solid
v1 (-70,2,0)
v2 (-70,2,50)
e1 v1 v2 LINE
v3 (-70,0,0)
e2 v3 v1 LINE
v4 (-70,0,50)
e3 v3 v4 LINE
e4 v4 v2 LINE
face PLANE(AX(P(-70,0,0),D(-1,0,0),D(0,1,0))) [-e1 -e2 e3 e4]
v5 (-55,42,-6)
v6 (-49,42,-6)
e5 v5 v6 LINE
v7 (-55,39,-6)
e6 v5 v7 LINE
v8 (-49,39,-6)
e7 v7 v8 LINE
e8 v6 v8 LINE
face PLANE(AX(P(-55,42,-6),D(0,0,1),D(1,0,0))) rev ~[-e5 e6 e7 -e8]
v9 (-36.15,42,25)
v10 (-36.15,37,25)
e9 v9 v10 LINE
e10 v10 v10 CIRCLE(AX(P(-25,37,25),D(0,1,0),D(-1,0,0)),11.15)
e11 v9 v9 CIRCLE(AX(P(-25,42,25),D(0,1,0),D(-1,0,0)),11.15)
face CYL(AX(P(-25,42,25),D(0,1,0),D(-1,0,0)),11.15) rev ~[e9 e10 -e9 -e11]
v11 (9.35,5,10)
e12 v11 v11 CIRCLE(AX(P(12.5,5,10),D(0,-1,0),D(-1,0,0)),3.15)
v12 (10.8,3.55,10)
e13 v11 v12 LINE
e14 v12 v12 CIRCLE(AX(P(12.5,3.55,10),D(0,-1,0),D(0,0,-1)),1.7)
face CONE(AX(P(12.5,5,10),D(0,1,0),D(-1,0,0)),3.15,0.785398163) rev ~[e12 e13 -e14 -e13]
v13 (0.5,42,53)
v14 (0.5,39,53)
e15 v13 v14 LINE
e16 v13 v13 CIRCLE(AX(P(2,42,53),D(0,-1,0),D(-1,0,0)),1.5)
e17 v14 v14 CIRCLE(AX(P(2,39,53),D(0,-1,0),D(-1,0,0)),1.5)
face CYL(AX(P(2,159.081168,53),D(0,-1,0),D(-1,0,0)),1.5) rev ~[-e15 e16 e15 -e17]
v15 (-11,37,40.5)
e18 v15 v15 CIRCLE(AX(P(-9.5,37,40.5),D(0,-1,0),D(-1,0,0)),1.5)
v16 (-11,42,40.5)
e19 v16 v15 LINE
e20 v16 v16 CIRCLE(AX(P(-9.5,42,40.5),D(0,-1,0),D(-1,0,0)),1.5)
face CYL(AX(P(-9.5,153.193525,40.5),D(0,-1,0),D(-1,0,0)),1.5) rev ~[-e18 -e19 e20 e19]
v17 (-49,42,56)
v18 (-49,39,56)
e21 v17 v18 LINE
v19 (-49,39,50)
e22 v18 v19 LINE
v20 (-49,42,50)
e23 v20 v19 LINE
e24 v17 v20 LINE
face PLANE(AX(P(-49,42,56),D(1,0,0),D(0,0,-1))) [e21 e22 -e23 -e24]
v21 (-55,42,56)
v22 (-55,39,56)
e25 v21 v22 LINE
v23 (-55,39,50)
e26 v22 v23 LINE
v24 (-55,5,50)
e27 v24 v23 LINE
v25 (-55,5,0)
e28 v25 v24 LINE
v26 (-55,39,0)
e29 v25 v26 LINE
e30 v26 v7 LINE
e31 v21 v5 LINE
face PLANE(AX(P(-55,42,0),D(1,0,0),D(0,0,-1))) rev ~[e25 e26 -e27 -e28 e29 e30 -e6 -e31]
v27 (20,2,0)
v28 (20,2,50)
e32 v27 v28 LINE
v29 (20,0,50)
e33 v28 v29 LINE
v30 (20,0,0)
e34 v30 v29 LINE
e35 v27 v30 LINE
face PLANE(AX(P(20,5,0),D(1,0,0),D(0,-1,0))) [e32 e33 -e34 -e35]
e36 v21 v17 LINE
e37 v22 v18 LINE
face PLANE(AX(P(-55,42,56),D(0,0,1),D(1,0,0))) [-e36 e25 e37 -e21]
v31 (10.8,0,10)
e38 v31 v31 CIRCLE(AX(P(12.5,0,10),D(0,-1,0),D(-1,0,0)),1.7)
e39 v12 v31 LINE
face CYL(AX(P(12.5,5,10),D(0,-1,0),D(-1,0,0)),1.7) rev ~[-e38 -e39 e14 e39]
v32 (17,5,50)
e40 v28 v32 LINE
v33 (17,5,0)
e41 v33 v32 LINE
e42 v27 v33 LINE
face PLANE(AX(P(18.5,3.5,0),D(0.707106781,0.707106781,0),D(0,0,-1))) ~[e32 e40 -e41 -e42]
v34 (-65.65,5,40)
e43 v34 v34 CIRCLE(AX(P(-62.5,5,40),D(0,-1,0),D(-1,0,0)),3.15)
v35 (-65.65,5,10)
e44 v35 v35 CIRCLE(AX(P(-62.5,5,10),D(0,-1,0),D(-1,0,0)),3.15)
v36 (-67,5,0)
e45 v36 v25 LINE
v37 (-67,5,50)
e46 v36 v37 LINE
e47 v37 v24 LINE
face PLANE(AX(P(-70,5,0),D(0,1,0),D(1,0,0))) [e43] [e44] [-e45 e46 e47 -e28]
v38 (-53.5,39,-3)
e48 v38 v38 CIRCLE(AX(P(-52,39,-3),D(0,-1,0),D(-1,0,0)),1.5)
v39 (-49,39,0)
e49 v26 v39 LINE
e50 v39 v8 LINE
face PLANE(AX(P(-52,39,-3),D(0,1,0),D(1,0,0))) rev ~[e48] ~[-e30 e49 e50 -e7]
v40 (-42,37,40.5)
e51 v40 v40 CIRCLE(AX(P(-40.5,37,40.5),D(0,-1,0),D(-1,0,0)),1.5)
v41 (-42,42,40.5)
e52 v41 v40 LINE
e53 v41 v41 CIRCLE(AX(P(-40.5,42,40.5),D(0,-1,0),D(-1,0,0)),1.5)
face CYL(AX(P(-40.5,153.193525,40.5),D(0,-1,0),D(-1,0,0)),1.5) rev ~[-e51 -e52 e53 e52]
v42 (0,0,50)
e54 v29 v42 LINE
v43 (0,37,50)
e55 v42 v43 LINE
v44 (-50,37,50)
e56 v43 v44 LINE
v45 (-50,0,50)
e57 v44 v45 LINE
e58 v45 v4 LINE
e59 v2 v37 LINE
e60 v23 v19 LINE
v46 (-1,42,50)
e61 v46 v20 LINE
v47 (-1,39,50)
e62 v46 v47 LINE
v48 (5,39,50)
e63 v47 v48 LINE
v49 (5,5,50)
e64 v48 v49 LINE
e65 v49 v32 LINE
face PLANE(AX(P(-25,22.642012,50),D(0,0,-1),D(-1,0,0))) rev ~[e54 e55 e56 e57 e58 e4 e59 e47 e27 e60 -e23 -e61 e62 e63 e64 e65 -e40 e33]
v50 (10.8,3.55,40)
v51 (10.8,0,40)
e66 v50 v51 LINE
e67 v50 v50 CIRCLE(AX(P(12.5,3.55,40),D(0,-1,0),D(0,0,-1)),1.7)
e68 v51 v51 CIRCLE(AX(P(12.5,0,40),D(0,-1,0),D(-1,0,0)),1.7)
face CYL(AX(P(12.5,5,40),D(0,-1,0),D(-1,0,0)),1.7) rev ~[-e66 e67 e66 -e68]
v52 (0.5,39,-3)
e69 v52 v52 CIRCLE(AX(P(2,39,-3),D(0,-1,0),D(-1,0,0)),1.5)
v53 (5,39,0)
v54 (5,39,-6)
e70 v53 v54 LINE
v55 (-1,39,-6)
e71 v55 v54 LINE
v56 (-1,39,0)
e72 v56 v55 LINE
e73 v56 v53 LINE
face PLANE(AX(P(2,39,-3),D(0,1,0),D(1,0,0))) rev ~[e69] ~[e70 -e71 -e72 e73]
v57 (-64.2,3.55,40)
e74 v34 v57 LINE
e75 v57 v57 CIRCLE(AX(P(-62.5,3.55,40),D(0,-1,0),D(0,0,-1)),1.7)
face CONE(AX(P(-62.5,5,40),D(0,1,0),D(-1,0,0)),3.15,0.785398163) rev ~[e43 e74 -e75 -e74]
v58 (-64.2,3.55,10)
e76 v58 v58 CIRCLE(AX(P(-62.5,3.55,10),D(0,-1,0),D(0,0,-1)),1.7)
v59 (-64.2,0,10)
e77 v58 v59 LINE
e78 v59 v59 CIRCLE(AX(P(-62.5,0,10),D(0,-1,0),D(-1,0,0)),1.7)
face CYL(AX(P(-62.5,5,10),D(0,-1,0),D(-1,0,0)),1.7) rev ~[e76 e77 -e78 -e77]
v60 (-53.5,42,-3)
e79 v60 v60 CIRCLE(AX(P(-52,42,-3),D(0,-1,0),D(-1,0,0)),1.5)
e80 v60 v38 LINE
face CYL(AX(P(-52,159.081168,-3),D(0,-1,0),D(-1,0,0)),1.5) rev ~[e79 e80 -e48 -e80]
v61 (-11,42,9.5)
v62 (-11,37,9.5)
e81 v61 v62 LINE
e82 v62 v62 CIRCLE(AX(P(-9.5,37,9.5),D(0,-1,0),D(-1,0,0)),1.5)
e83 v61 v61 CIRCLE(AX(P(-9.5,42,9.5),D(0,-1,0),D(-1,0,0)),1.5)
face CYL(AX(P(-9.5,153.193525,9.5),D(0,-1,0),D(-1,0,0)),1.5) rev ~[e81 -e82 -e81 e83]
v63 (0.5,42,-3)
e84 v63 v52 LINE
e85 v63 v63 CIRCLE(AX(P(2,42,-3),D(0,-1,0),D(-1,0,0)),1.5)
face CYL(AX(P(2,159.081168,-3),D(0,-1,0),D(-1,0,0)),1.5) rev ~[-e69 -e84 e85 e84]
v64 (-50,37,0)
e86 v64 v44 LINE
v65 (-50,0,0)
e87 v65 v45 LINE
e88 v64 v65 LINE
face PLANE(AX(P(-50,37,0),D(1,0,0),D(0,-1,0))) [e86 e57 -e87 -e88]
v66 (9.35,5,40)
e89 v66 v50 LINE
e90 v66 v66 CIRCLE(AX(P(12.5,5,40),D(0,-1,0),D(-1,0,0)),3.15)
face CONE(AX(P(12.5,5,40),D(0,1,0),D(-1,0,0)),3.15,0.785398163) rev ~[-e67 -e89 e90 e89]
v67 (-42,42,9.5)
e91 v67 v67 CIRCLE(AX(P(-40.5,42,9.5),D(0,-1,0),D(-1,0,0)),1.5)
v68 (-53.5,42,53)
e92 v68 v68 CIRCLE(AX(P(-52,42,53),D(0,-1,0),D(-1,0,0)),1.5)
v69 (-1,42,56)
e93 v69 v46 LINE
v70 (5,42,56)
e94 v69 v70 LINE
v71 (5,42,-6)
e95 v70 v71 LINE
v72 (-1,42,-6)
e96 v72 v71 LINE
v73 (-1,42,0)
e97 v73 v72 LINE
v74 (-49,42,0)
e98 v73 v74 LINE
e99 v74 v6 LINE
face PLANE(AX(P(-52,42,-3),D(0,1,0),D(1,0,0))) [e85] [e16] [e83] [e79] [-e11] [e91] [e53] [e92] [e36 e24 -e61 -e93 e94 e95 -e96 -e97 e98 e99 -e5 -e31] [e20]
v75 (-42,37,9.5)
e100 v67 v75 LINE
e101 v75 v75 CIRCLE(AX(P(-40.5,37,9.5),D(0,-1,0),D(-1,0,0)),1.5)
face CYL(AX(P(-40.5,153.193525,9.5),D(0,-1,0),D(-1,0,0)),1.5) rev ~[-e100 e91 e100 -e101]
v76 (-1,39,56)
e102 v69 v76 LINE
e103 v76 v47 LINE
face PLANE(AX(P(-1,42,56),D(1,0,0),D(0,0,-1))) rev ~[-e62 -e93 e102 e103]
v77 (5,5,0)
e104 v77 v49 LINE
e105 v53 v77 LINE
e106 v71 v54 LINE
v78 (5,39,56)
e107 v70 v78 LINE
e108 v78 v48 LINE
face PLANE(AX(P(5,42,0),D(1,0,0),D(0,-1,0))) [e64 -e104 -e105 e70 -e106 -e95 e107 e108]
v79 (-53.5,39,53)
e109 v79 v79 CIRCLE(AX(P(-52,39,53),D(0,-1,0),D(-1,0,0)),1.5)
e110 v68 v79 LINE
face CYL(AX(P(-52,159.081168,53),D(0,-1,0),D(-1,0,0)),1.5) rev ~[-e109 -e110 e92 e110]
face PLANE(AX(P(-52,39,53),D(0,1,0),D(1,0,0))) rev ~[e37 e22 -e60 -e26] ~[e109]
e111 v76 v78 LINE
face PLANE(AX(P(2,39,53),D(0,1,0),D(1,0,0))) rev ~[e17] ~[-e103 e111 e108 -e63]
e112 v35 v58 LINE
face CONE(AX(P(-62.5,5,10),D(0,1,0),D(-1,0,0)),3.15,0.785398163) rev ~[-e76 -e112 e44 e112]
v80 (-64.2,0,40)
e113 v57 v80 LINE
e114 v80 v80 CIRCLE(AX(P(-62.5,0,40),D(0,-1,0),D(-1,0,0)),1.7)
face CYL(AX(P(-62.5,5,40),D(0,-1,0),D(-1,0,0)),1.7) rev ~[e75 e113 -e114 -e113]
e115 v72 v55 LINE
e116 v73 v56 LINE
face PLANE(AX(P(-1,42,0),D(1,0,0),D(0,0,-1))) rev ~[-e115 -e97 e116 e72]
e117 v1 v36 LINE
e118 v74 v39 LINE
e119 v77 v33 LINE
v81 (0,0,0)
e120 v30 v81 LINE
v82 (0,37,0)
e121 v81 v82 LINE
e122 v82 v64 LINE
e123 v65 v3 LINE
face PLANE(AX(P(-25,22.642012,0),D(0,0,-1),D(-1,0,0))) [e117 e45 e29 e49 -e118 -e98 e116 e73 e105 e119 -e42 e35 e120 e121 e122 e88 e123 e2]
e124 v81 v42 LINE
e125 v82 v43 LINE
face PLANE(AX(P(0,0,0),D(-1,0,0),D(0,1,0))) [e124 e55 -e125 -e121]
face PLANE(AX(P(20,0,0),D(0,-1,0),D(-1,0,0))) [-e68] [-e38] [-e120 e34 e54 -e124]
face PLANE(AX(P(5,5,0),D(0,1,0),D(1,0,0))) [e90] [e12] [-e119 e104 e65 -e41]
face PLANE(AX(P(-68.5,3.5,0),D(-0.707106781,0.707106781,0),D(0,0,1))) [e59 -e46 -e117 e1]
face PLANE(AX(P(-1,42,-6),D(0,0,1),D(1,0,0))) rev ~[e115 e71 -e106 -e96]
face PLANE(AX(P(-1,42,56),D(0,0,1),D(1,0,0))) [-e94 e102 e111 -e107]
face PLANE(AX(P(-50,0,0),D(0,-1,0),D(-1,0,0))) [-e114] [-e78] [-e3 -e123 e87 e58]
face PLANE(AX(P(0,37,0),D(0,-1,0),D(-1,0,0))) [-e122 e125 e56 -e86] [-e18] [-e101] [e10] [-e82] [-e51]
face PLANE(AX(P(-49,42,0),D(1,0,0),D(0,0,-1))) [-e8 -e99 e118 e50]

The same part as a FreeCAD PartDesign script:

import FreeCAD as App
import Part
import Sketcher

V = App.Vector


def edges_at(feature, points):
    """Names of the edges that pass closest to the given points."""
    edges = feature.Shape.Edges
    near = lambda p: min(range(len(edges)), key=lambda i: edges[i].distToShape(Part.Vertex(*p))[0])
    return sorted({f"Edge{near(p) + 1}" for p in points})

doc = App.newDocument("Part")
body = doc.addObject("PartDesign::Body", "Body")

# Sketch on XY plane
sketch1 = body.newObject("Sketcher::SketchObject", "Sketch")
sketch1.AttachmentSupport = (doc.getObject("XY_Plane"), [""])
sketch1.MapMode = "FlatFace"
sketch1.addGeometry(Part.LineSegment(V(0, 37, 0), V(0, 0, 0)), False)
sketch1.addGeometry(Part.LineSegment(V(0, 0, 0), V(20, 0, 0)), False)
sketch1.addGeometry(Part.LineSegment(V(20, 0, 0), V(20, 5, 0)), False)
sketch1.addGeometry(Part.LineSegment(V(20, 5, 0), V(5, 5, 0)), False)
sketch1.addGeometry(Part.LineSegment(V(5, 5, 0), V(5, 42, 0)), False)
sketch1.addGeometry(Part.LineSegment(V(5, 42, 0), V(-55, 42, 0)), False)
sketch1.addGeometry(Part.LineSegment(V(-55, 42, 0), V(-55, 5, 0)), False)
sketch1.addGeometry(Part.LineSegment(V(-55, 5, 0), V(-70, 5, 0)), False)
sketch1.addGeometry(Part.LineSegment(V(-70, 5, 0), V(-70, 0, 0)), False)
sketch1.addGeometry(Part.LineSegment(V(-70, 0, 0), V(-50, 0, 0)), False)
sketch1.addGeometry(Part.LineSegment(V(-50, 0, 0), V(-50, 37, 0)), False)
sketch1.addGeometry(Part.LineSegment(V(-50, 37, 0), V(0, 37, 0)), False)
sketch1.addConstraint(Sketcher.Constraint("Coincident", 0, 2, 1, 1))
sketch1.addConstraint(Sketcher.Constraint("Coincident", 1, 2, 2, 1))
sketch1.addConstraint(Sketcher.Constraint("Coincident", 2, 2, 3, 1))
sketch1.addConstraint(Sketcher.Constraint("Coincident", 3, 2, 4, 1))
sketch1.addConstraint(Sketcher.Constraint("Coincident", 4, 2, 5, 1))
sketch1.addConstraint(Sketcher.Constraint("Coincident", 5, 2, 6, 1))
sketch1.addConstraint(Sketcher.Constraint("Coincident", 6, 2, 7, 1))
sketch1.addConstraint(Sketcher.Constraint("Coincident", 7, 2, 8, 1))
sketch1.addConstraint(Sketcher.Constraint("Coincident", 8, 2, 9, 1))
sketch1.addConstraint(Sketcher.Constraint("Coincident", 9, 2, 10, 1))
sketch1.addConstraint(Sketcher.Constraint("Coincident", 10, 2, 11, 1))
sketch1.addConstraint(Sketcher.Constraint("Coincident", 11, 2, 0, 1))
sketch1.addConstraint(Sketcher.Constraint("Vertical", 0))
sketch1.addConstraint(Sketcher.Constraint("Horizontal", 1))
sketch1.addConstraint(Sketcher.Constraint("Vertical", 2))
sketch1.addConstraint(Sketcher.Constraint("Horizontal", 3))
sketch1.addConstraint(Sketcher.Constraint("Vertical", 4))
sketch1.addConstraint(Sketcher.Constraint("Horizontal", 5))
sketch1.addConstraint(Sketcher.Constraint("Vertical", 6))
sketch1.addConstraint(Sketcher.Constraint("Horizontal", 7))
sketch1.addConstraint(Sketcher.Constraint("Vertical", 8))
sketch1.addConstraint(Sketcher.Constraint("Horizontal", 9))
sketch1.addConstraint(Sketcher.Constraint("Vertical", 10))
sketch1.addConstraint(Sketcher.Constraint("Horizontal", 11))
sketch1.addConstraint(Sketcher.Constraint("Coincident", 0, 2, -1, 1))
sketch1.addConstraint(Sketcher.Constraint("PointOnObject", 8, 2, -1))
sketch1.addConstraint(Sketcher.Constraint("Horizontal", 3, 2, 6, 2))
sketch1.addConstraint(Sketcher.Constraint("Equal", 3, 7))
sketch1.addConstraint(Sketcher.Constraint("Equal", 1, 9))
sketch1.addConstraint(Sketcher.Constraint("Equal", 0, 4))
sketch1.addConstraint(Sketcher.Constraint("DistanceX", 1, 1, 1, 2, 20.0))
sketch1.addConstraint(Sketcher.Constraint("DistanceX", 3, 2, 3, 1, 15.0))
sketch1.addConstraint(Sketcher.Constraint("DistanceX", 5, 2, 5, 1, 60.0))
sketch1.addConstraint(Sketcher.Constraint("DistanceY", 0, 2, 0, 1, 37.0))
sketch1.addConstraint(Sketcher.Constraint("DistanceY", 2, 1, 2, 2, 5.0))
pad1 = body.newObject("PartDesign::Pad", "Pad")
pad1.Profile = sketch1
pad1.Length = 50

# Sketch on XZ plane
sketch2 = body.newObject("Sketcher::SketchObject", "Sketch001")
sketch2.AttachmentSupport = (doc.getObject("XZ_Plane"), [""])
sketch2.MapMode = "FlatFace"
sketch2.AttachmentOffset = App.Placement(V(0, 0, -5), App.Rotation())
sketch2.addGeometry(Part.Circle(V(-62.5, 10, 0), V(0, 0, 1), 1.7), False)
sketch2.addGeometry(Part.Circle(V(-62.5, 40, 0), V(0, 0, 1), 1.7), False)
sketch2.addGeometry(Part.Circle(V(12.5, 40, 0), V(0, 0, 1), 1.7), False)
sketch2.addGeometry(Part.Circle(V(12.5, 10, 0), V(0, 0, 1), 1.7), False)
sketch2.addConstraint(Sketcher.Constraint("Equal", 0, 1))
sketch2.addConstraint(Sketcher.Constraint("Equal", 1, 2))
sketch2.addConstraint(Sketcher.Constraint("Equal", 2, 3))
sketch2.addConstraint(Sketcher.Constraint("Horizontal", 1, 3, 2, 3))
sketch2.addConstraint(Sketcher.Constraint("Horizontal", 0, 3, 3, 3))
sketch2.addConstraint(Sketcher.Constraint("Vertical", 0, 3, 1, 3))
sketch2.addConstraint(Sketcher.Constraint("Vertical", 2, 3, 3, 3))
sketch2.addConstraint(Sketcher.Constraint("Diameter", 0, 3.4))
sketch2.addConstraint(Sketcher.Constraint("DistanceY", -1, 1, 0, 3, 10.0))
sketch2.addConstraint(Sketcher.Constraint("DistanceY", -1, 1, 1, 3, 40.0))
sketch2.addConstraint(Sketcher.Constraint("DistanceX", 1, 3, 2, 3, 75.0))
sketch2.addConstraint(Sketcher.Constraint("DistanceX", 0, 3, -1, 1, 62.5))
doc.recompute()
hole = body.newObject("PartDesign::Hole", "Hole")
hole.Profile = sketch2
hole.ThreadType = "None"
hole.Diameter = 3.4
hole.DepthType = "ThroughAll"
hole.HoleCutType = "Countersink"
hole.HoleCutDiameter = 6.3
hole.HoleCutCountersinkAngle = 90
hole.Reversed = True

# Sketch on XZ plane
sketch3 = body.newObject("Sketcher::SketchObject", "Sketch002")
sketch3.AttachmentSupport = (doc.getObject("XZ_Plane"), [""])
sketch3.MapMode = "FlatFace"
sketch3.AttachmentOffset = App.Placement(V(0, 0, -42), App.Rotation())
sketch3.addGeometry(Part.Circle(V(-25, 25, 0), V(0, 0, 1), 11), False)
sketch3.addConstraint(Sketcher.Constraint("Diameter", 0, 22.3))
sketch3.addConstraint(Sketcher.Constraint("DistanceX", 0, 3, -1, 1, 25.0))
sketch3.addConstraint(Sketcher.Constraint("DistanceY", -1, 1, 0, 3, 25.0))
pocket1 = body.newObject("PartDesign::Pocket", "Pocket")
pocket1.Profile = sketch3
pocket1.Length = 41
pocket1.Reversed = True

# Sketch on XZ plane
sketch4 = body.newObject("Sketcher::SketchObject", "Sketch003")
sketch4.AttachmentSupport = (doc.getObject("XZ_Plane"), [""])
sketch4.MapMode = "FlatFace"
sketch4.AttachmentOffset = App.Placement(V(0, 0, -42), App.Rotation())
sketch4.addGeometry(Part.Circle(V(-40.5, 40.5, 0), V(0, 0, 1), 1.5), False)
sketch4.addGeometry(Part.Circle(V(-40.5, 9.5, 0), V(0, 0, 1), 1.5), False)
sketch4.addGeometry(Part.Circle(V(-9.5, 9.5, 0), V(0, 0, 1), 1.5), False)
sketch4.addGeometry(Part.Circle(V(-9.5, 40.5, 0), V(0, 0, 1), 1.5), False)
sketch4.addConstraint(Sketcher.Constraint("Equal", 0, 1))
sketch4.addConstraint(Sketcher.Constraint("Equal", 1, 2))
sketch4.addConstraint(Sketcher.Constraint("Equal", 2, 3))
sketch4.addConstraint(Sketcher.Constraint("Horizontal", 1, 3, 2, 3))
sketch4.addConstraint(Sketcher.Constraint("Horizontal", 0, 3, 3, 3))
sketch4.addConstraint(Sketcher.Constraint("Vertical", 0, 3, 1, 3))
sketch4.addConstraint(Sketcher.Constraint("Vertical", 2, 3, 3, 3))
sketch4.addConstraint(Sketcher.Constraint("Diameter", 0, 3.0))
sketch4.addConstraint(Sketcher.Constraint("DistanceY", 1, 3, 0, 3, 31.0))
sketch4.addConstraint(Sketcher.Constraint("DistanceX", 1, 3, 2, 3, 31.0))
sketch4.addConstraint(Sketcher.Constraint("DistanceX", 0, 3, -1, 1, 40.5))
sketch4.addConstraint(Sketcher.Constraint("DistanceY", -1, 1, 0, 3, 40.5))
doc.recompute()
hole2 = body.newObject("PartDesign::Hole", "Hole001")
hole2.Profile = sketch4
hole2.ThreadType = "None"
hole2.Diameter = 3
hole2.DepthType = "ThroughAll"
hole2.Reversed = True
doc.recompute()

chamfer = body.newObject("PartDesign::Chamfer", "Chamfer")
chamfer.Base = (hole2, edges_at(hole2, [(-70, 5, 25), (20, 5, 25)]))
chamfer.Size = 3

# Sketch on XZ plane
sketch5 = body.newObject("Sketcher::SketchObject", "Sketch004")
sketch5.AttachmentSupport = (doc.getObject("XZ_Plane"), [""])
sketch5.MapMode = "FlatFace"
sketch5.AttachmentOffset = App.Placement(V(0, 0, -42), App.Rotation())
sketch5.addGeometry(Part.LineSegment(V(-55, -6, 0), V(-55, 0, 0)), False)
sketch5.addGeometry(Part.LineSegment(V(-55, 0, 0), V(-49, 0, 0)), False)
sketch5.addGeometry(Part.LineSegment(V(-49, 0, 0), V(-49, -6, 0)), False)
sketch5.addGeometry(Part.LineSegment(V(-49, -6, 0), V(-55, -6, 0)), False)
sketch5.addGeometry(Part.LineSegment(V(-55, 50, 0), V(-55, 56, 0)), False)
sketch5.addGeometry(Part.LineSegment(V(-55, 56, 0), V(-49, 56, 0)), False)
sketch5.addGeometry(Part.LineSegment(V(-49, 56, 0), V(-49, 50, 0)), False)
sketch5.addGeometry(Part.LineSegment(V(-49, 50, 0), V(-55, 50, 0)), False)
sketch5.addGeometry(Part.LineSegment(V(-1, -6, 0), V(-1, 0, 0)), False)
sketch5.addGeometry(Part.LineSegment(V(-1, 0, 0), V(5, 0, 0)), False)
sketch5.addGeometry(Part.LineSegment(V(5, 0, 0), V(5, -6, 0)), False)
sketch5.addGeometry(Part.LineSegment(V(5, -6, 0), V(-1, -6, 0)), False)
sketch5.addGeometry(Part.LineSegment(V(-1, 50, 0), V(-1, 56, 0)), False)
sketch5.addGeometry(Part.LineSegment(V(-1, 56, 0), V(5, 56, 0)), False)
sketch5.addGeometry(Part.LineSegment(V(5, 56, 0), V(5, 50, 0)), False)
sketch5.addGeometry(Part.LineSegment(V(5, 50, 0), V(-1, 50, 0)), False)
sketch5.addConstraint(Sketcher.Constraint("Coincident", 0, 2, 1, 1))
sketch5.addConstraint(Sketcher.Constraint("Coincident", 1, 2, 2, 1))
sketch5.addConstraint(Sketcher.Constraint("Coincident", 2, 2, 3, 1))
sketch5.addConstraint(Sketcher.Constraint("Coincident", 3, 2, 0, 1))
sketch5.addConstraint(Sketcher.Constraint("Coincident", 4, 2, 5, 1))
sketch5.addConstraint(Sketcher.Constraint("Coincident", 5, 2, 6, 1))
sketch5.addConstraint(Sketcher.Constraint("Coincident", 6, 2, 7, 1))
sketch5.addConstraint(Sketcher.Constraint("Coincident", 7, 2, 4, 1))
sketch5.addConstraint(Sketcher.Constraint("Coincident", 8, 2, 9, 1))
sketch5.addConstraint(Sketcher.Constraint("Coincident", 9, 2, 10, 1))
sketch5.addConstraint(Sketcher.Constraint("Coincident", 10, 2, 11, 1))
sketch5.addConstraint(Sketcher.Constraint("Coincident", 11, 2, 8, 1))
sketch5.addConstraint(Sketcher.Constraint("Coincident", 12, 2, 13, 1))
sketch5.addConstraint(Sketcher.Constraint("Coincident", 13, 2, 14, 1))
sketch5.addConstraint(Sketcher.Constraint("Coincident", 14, 2, 15, 1))
sketch5.addConstraint(Sketcher.Constraint("Coincident", 15, 2, 12, 1))
sketch5.addConstraint(Sketcher.Constraint("Vertical", 0))
sketch5.addConstraint(Sketcher.Constraint("Horizontal", 1))
sketch5.addConstraint(Sketcher.Constraint("Vertical", 2))
sketch5.addConstraint(Sketcher.Constraint("Horizontal", 3))
sketch5.addConstraint(Sketcher.Constraint("Vertical", 4))
sketch5.addConstraint(Sketcher.Constraint("Horizontal", 5))
sketch5.addConstraint(Sketcher.Constraint("Vertical", 6))
sketch5.addConstraint(Sketcher.Constraint("Horizontal", 7))
sketch5.addConstraint(Sketcher.Constraint("Vertical", 8))
sketch5.addConstraint(Sketcher.Constraint("Horizontal", 9))
sketch5.addConstraint(Sketcher.Constraint("Vertical", 10))
sketch5.addConstraint(Sketcher.Constraint("Horizontal", 11))
sketch5.addConstraint(Sketcher.Constraint("Vertical", 12))
sketch5.addConstraint(Sketcher.Constraint("Horizontal", 13))
sketch5.addConstraint(Sketcher.Constraint("Vertical", 14))
sketch5.addConstraint(Sketcher.Constraint("Horizontal", 15))
sketch5.addConstraint(Sketcher.Constraint("PointOnObject", 0, 2, -1))
sketch5.addConstraint(Sketcher.Constraint("PointOnObject", 8, 2, -1))
sketch5.addConstraint(Sketcher.Constraint("Horizontal", 3, 2, 10, 2))
sketch5.addConstraint(Sketcher.Constraint("Horizontal", 5, 2, 12, 2))
sketch5.addConstraint(Sketcher.Constraint("Horizontal", 7, 2, 14, 2))
sketch5.addConstraint(Sketcher.Constraint("Vertical", 3, 2, 4, 2))
sketch5.addConstraint(Sketcher.Constraint("Vertical", 2, 2, 5, 2))
sketch5.addConstraint(Sketcher.Constraint("Vertical", 11, 2, 12, 2))
sketch5.addConstraint(Sketcher.Constraint("Vertical", 10, 2, 13, 2))
sketch5.addConstraint(Sketcher.Constraint("Equal", 7, 9))
sketch5.addConstraint(Sketcher.Constraint("Equal", 15, 0))
sketch5.addConstraint(Sketcher.Constraint("Equal", 2, 4))
sketch5.addConstraint(Sketcher.Constraint("DistanceX", 1, 1, 1, 2, 6.0))
sketch5.addConstraint(Sketcher.Constraint("DistanceX", 0, 2, -1, 1, 55.0))
sketch5.addConstraint(Sketcher.Constraint("DistanceY", -1, 1, 4, 2, 56.0))
sketch5.addConstraint(Sketcher.Constraint("DistanceX", 8, 2, -1, 1, 1.0))
pad2 = body.newObject("PartDesign::Pad", "Pad001")
pad2.Profile = sketch5
pad2.Length = 3

# Sketch on XZ plane
sketch6 = body.newObject("Sketcher::SketchObject", "Sketch005")
sketch6.AttachmentSupport = (doc.getObject("XZ_Plane"), [""])
sketch6.MapMode = "FlatFace"
sketch6.AttachmentOffset = App.Placement(V(0, 0, -42), App.Rotation())
sketch6.addGeometry(Part.Circle(V(-52, -3, 0), V(0, 0, 1), 1.5), False)
sketch6.addGeometry(Part.Circle(V(2, -3, 0), V(0, 0, 1), 1.5), False)
sketch6.addGeometry(Part.Circle(V(2, 53, 0), V(0, 0, 1), 1.5), False)
sketch6.addGeometry(Part.Circle(V(-52, 53, 0), V(0, 0, 1), 1.5), False)
sketch6.addConstraint(Sketcher.Constraint("Equal", 0, 1))
sketch6.addConstraint(Sketcher.Constraint("Equal", 1, 2))
sketch6.addConstraint(Sketcher.Constraint("Equal", 2, 3))
sketch6.addConstraint(Sketcher.Constraint("Horizontal", 0, 3, 1, 3))
sketch6.addConstraint(Sketcher.Constraint("Horizontal", 2, 3, 3, 3))
sketch6.addConstraint(Sketcher.Constraint("Vertical", 1, 3, 2, 3))
sketch6.addConstraint(Sketcher.Constraint("Vertical", 0, 3, 3, 3))
sketch6.addConstraint(Sketcher.Constraint("Diameter", 0, 3.0))
sketch6.addConstraint(Sketcher.Constraint("DistanceX", 0, 3, -1, 1, 52.0))
sketch6.addConstraint(Sketcher.Constraint("DistanceY", 0, 3, -1, 1, 3.0))
sketch6.addConstraint(Sketcher.Constraint("DistanceX", -1, 1, 1, 3, 2.0))
sketch6.addConstraint(Sketcher.Constraint("DistanceY", -1, 1, 2, 3, 53.0))
doc.recompute()
hole3 = body.newObject("PartDesign::Hole", "Hole002")
hole3.Profile = sketch6
hole3.ThreadType = "None"
hole3.Diameter = 3
hole3.DepthType = "ThroughAll"
hole3.Reversed = True

doc.recompute()
